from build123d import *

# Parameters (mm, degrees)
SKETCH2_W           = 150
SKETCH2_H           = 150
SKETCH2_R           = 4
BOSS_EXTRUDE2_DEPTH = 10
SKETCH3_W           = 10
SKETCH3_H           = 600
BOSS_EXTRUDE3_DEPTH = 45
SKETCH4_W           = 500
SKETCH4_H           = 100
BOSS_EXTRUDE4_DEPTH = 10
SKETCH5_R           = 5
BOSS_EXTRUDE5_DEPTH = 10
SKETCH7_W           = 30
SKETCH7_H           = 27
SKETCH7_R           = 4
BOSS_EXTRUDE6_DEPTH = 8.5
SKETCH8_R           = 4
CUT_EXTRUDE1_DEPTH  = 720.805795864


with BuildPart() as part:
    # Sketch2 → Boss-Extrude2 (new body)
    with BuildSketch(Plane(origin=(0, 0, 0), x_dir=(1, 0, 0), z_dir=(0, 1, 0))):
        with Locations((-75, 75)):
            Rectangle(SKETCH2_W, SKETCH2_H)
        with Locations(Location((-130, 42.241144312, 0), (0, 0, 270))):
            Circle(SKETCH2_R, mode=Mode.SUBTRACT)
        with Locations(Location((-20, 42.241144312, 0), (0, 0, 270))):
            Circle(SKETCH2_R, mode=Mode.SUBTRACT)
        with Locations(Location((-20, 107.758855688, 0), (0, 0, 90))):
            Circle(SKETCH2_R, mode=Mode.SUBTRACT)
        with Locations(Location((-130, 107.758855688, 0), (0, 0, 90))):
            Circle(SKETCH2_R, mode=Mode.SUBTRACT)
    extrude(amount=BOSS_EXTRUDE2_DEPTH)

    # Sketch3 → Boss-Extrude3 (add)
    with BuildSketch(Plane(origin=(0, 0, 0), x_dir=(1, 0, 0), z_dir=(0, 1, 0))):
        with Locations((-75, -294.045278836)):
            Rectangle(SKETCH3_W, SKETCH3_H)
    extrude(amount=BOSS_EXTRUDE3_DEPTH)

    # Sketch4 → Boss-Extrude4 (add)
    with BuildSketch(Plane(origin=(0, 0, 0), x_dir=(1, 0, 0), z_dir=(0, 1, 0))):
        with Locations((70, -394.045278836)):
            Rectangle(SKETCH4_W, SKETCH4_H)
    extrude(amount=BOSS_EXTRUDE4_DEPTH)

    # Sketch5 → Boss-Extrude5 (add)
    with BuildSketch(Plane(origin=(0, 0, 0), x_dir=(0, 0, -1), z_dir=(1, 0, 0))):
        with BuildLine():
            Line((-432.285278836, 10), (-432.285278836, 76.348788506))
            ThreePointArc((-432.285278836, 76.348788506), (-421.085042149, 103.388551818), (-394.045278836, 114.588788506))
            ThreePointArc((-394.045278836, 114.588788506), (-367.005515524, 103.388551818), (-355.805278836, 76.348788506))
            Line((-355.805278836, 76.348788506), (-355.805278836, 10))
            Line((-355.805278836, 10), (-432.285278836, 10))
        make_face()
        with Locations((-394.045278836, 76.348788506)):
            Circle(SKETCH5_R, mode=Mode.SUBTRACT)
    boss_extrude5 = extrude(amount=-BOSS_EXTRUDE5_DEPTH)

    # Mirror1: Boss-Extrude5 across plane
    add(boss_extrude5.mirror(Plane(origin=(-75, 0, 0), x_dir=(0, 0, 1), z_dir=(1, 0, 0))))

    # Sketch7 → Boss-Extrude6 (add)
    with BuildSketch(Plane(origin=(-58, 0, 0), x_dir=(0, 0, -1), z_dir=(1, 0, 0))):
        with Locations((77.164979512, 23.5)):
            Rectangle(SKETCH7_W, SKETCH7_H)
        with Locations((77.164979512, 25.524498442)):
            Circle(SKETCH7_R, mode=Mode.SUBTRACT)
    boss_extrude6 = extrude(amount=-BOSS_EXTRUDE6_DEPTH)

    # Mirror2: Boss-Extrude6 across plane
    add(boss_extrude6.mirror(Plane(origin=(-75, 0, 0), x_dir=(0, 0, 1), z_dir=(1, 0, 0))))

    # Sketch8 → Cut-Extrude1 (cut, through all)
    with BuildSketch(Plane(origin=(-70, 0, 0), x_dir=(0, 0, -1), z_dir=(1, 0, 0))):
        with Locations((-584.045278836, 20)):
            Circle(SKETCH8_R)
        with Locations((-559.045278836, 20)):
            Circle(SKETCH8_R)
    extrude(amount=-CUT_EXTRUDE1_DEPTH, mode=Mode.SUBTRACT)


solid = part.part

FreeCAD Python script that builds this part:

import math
import FreeCAD as App
import Part
import Sketcher
Q = App.Units.Quantity

doc = App.newDocument("Part")
body = doc.addObject("PartDesign::Body", "Body")

# Sketch on XZ plane
sketch1 = doc.addObject("Sketcher::SketchObject", "Sketch")
body.addObject(sketch1)
sketch1.AttachmentSupport = (doc.XZ_Plane, [""])
sketch1.MapMode = "FlatFace"
sketch1.addGeometry(Part.LineSegment(App.Vector(-150, -150, 0), App.Vector(-150, 0, 0)), False)
sketch1.addGeometry(Part.LineSegment(App.Vector(-150, 0, 0), App.Vector(0, 0, 0)), False)
sketch1.addGeometry(Part.LineSegment(App.Vector(0, 0, 0), App.Vector(0, -150, 0)), False)
sketch1.addGeometry(Part.LineSegment(App.Vector(0, -150, 0), App.Vector(-150, -150, 0)), False)
sketch1.addGeometry(Part.Circle(App.Vector(-130, -42.2, 0), App.Vector(0, 0, 1), 4), False)
sketch1.addGeometry(Part.Circle(App.Vector(-20, -42.2, 0), App.Vector(0, 0, 1), 4), False)
sketch1.addGeometry(Part.Circle(App.Vector(-130, -107.8, 0), App.Vector(0, 0, 1), 4), False)
sketch1.addGeometry(Part.Circle(App.Vector(-20, -107.8, 0), App.Vector(0, 0, 1), 4), False)
sketch1.addConstraint(Sketcher.Constraint("Coincident", 0, 2, 1, 1))
sketch1.addConstraint(Sketcher.Constraint("Coincident", 1, 2, 2, 1))
sketch1.addConstraint(Sketcher.Constraint("Coincident", 2, 2, 3, 1))
sketch1.addConstraint(Sketcher.Constraint("Coincident", 3, 2, 0, 1))
sketch1.addConstraint(Sketcher.Constraint("Vertical", 0))
sketch1.addConstraint(Sketcher.Constraint("Horizontal", 1))
sketch1.addConstraint(Sketcher.Constraint("Vertical", 2))
sketch1.addConstraint(Sketcher.Constraint("Horizontal", 3))
sketch1.addConstraint(Sketcher.Constraint("Coincident", 1, 2, -1, 1))
sketch1.addConstraint(Sketcher.Constraint("Equal", 4, 5))
sketch1.addConstraint(Sketcher.Constraint("Equal", 5, 6))
sketch1.addConstraint(Sketcher.Constraint("Equal", 6, 7))
sketch1.addConstraint(Sketcher.Constraint("Horizontal", 4, 3, 5, 3))
sketch1.addConstraint(Sketcher.Constraint("Horizontal", 6, 3, 7, 3))
sketch1.addConstraint(Sketcher.Constraint("Vertical", 4, 3, 6, 3))
sketch1.addConstraint(Sketcher.Constraint("Vertical", 5, 3, 7, 3))
sketch1.addConstraint(Sketcher.Constraint("Equal", 3, 0))
sketch1.addConstraint(Sketcher.Constraint("Diameter", 4, Q("8 mm")))
sketch1.addConstraint(Sketcher.Constraint("DistanceX", 1, 1, 1, 2, Q("150 mm")))
sketch1.addConstraint(Sketcher.Constraint("DistanceX", 4, 3, -1, 1, Q("130 mm")))
sketch1.addConstraint(Sketcher.Constraint("DistanceX", 5, 3, -1, 1, Q("20 mm")))
sketch1.addConstraint(Sketcher.Constraint("DistanceY", 6, 3, 4, 3, Q("65.517711 mm")))
sketch1.addConstraint(Sketcher.Constraint("DistanceY", 4, 3, -1, 1, Q("42.241144 mm")))
pad1 = doc.addObject("PartDesign::Pad", "Pad")
body.addObject(pad1)
pad1.Profile = sketch1
pad1.Length = 10
pad1.Reversed = True

# Sketch on XZ plane
sketch2 = doc.addObject("Sketcher::SketchObject", "Sketch001")
body.addObject(sketch2)
sketch2.AttachmentSupport = (doc.XZ_Plane, [""])
sketch2.MapMode = "FlatFace"
sketch2.addGeometry(Part.LineSegment(App.Vector(-80, -6, 0), App.Vector(-80, 594, 0)), False)
sketch2.addGeometry(Part.LineSegment(App.Vector(-80, 594, 0), App.Vector(-70, 594, 0)), False)
sketch2.addGeometry(Part.LineSegment(App.Vector(-70, 594, 0), App.Vector(-70, -6, 0)), False)
sketch2.addGeometry(Part.LineSegment(App.Vector(-70, -6, 0), App.Vector(-80, -6, 0)), False)
sketch2.addConstraint(Sketcher.Constraint("Coincident", 0, 2, 1, 1))
sketch2.addConstraint(Sketcher.Constraint("Coincident", 1, 2, 2, 1))
sketch2.addConstraint(Sketcher.Constraint("Coincident", 2, 2, 3, 1))
sketch2.addConstraint(Sketcher.Constraint("Coincident", 3, 2, 0, 1))
sketch2.addConstraint(Sketcher.Constraint("Vertical", 0))
sketch2.addConstraint(Sketcher.Constraint("Horizontal", 1))
sketch2.addConstraint(Sketcher.Constraint("Vertical", 2))
sketch2.addConstraint(Sketcher.Constraint("Horizontal", 3))
sketch2.addConstraint(Sketcher.Constraint("DistanceX", 1, 1, 1, 2, Q("10 mm")))
sketch2.addConstraint(Sketcher.Constraint("DistanceY", 0, 1, 0, 2, Q("600 mm")))
sketch2.addConstraint(Sketcher.Constraint("DistanceX", 0, 2, -1, 1, Q("80 mm")))
sketch2.addConstraint(Sketcher.Constraint("DistanceY", -1, 1, 0, 2, Q("594.045279 mm")))
pad2 = doc.addObject("PartDesign::Pad", "Pad001")
body.addObject(pad2)
pad2.Profile = sketch2
pad2.Length = 45
pad2.Reversed = True

# Sketch on XZ plane
sketch3 = doc.addObject("Sketcher::SketchObject", "Sketch002")
body.addObject(sketch3)
sketch3.AttachmentSupport = (doc.XZ_Plane, [""])
sketch3.MapMode = "FlatFace"
sketch3.addGeometry(Part.LineSegment(App.Vector(-180, 344, 0), App.Vector(-180, 444, 0)), False)
sketch3.addGeometry(Part.LineSegment(App.Vector(-180, 444, 0), App.Vector(320, 444, 0)), False)
sketch3.addGeometry(Part.LineSegment(App.Vector(320, 444, 0), App.Vector(320, 344, 0)), False)
sketch3.addGeometry(Part.LineSegment(App.Vector(320, 344, 0), App.Vector(-180, 344, 0)), False)
sketch3.addConstraint(Sketcher.Constraint("Coincident", 0, 2, 1, 1))
sketch3.addConstraint(Sketcher.Constraint("Coincident", 1, 2, 2, 1))
sketch3.addConstraint(Sketcher.Constraint("Coincident", 2, 2, 3, 1))
sketch3.addConstraint(Sketcher.Constraint("Coincident", 3, 2, 0, 1))
sketch3.addConstraint(Sketcher.Constraint("Vertical", 0))
sketch3.addConstraint(Sketcher.Constraint("Horizontal", 1))
sketch3.addConstraint(Sketcher.Constraint("Vertical", 2))
sketch3.addConstraint(Sketcher.Constraint("Horizontal", 3))
sketch3.addConstraint(Sketcher.Constraint("DistanceX", 1, 1, 1, 2, Q("500 mm")))
sketch3.addConstraint(Sketcher.Constraint("DistanceY", 0, 1, 0, 2, Q("100 mm")))
sketch3.addConstraint(Sketcher.Constraint("DistanceX", 0, 2, -1, 1, Q("180 mm")))
sketch3.addConstraint(Sketcher.Constraint("DistanceY", -1, 1, 0, 2, Q("444.045279 mm")))
pad3 = doc.addObject("PartDesign::Pad", "Pad002")
body.addObject(pad3)
pad3.Profile = sketch3
pad3.Length = 10
pad3.Reversed = True

# Sketch on YZ plane
sketch4 = doc.addObject("Sketcher::SketchObject", "Sketch003")
body.addObject(sketch4)
sketch4.AttachmentSupport = (doc.YZ_Plane, [""])
sketch4.MapMode = "FlatFace"
sketch4.addGeometry(Part.LineSegment(App.Vector(76, 432, 0), App.Vector(10, 432, 0)), False)
sketch4.addGeometry(Part.LineSegment(App.Vector(10, 432, 0), App.Vector(10, 356, 0)), False)
sketch4.addGeometry(Part.LineSegment(App.Vector(10, 356, 0), App.Vector(76, 356, 0)), False)
sketch4.addGeometry(Part.ArcOfCircle(Part.Circle(App.Vector(76, 394, 0), App.Vector(0, 0, 1), 38), math.radians(-90), math.radians(0)), False)
sketch4.addGeometry(Part.ArcOfCircle(Part.Circle(App.Vector(76, 394, 0), App.Vector(0, 0, 1), 38), math.radians(0), math.radians(90)), False)
sketch4.addGeometry(Part.Circle(App.Vector(76, 394, 0), App.Vector(0, 0, 1), 5), False)
sketch4.addConstraint(Sketcher.Constraint("Coincident", 0, 2, 1, 1))
sketch4.addConstraint(Sketcher.Constraint("Coincident", 1, 2, 2, 1))
sketch4.addConstraint(Sketcher.Constraint("Tangent", 2, 2, 3, 1))
sketch4.addConstraint(Sketcher.Constraint("Tangent", 3, 2, 4, 1))
sketch4.addConstraint(Sketcher.Constraint("Tangent", 4, 2, 0, 1))
sketch4.addConstraint(Sketcher.Constraint("Horizontal", 0))
sketch4.addConstraint(Sketcher.Constraint("Vertical", 1))
sketch4.addConstraint(Sketcher.Constraint("Horizontal", 2))
sketch4.addConstraint(Sketcher.Constraint("Coincident", 5, 3, 3, 3))
sketch4.addConstraint(Sketcher.Constraint("Equal", 3, 4))
sketch4.addConstraint(Sketcher.Constraint("Horizontal", 5, 3, 3, 2))
sketch4.addConstraint(Sketcher.Constraint("Diameter", 5, Q("10 mm")))
sketch4.addConstraint(Sketcher.Constraint("Radius", 3, Q("38.24 mm")))
sketch4.addConstraint(Sketcher.Constraint("DistanceX", -1, 1, 0, 2, Q("10 mm")))
sketch4.addConstraint(Sketcher.Constraint("DistanceX", 0, 2, 0, 1, Q("66.348789 mm")))
sketch4.addConstraint(Sketcher.Constraint("DistanceY", -1, 1, 3, 3, Q("394.045279 mm")))
pad4 = doc.addObject("PartDesign::Pad", "Pad003")
body.addObject(pad4)
pad4.Profile = sketch4
pad4.Length = 10
pad4.Reversed = True
doc.recompute()

datumplane = doc.addObject("PartDesign::Plane", "DatumPlane")
body.addObject(datumplane)
datumplane.AttachmentSupport = (doc.YZ_Plane, [""])
datumplane.MapMode = "FlatFace"
datumplane.AttachmentOffset = App.Placement(App.Vector(0, 0, -75), App.Rotation())
mirrored = doc.addObject("PartDesign::Mirrored", "Mirrored")
body.addObject(mirrored)
mirrored.Originals = [pad4]
mirrored.MirrorPlane = (datumplane, [""])
body.Tip = mirrored

# Sketch on YZ plane
sketch5 = doc.addObject("Sketcher::SketchObject", "Sketch004")
body.addObject(sketch5)
sketch5.AttachmentSupport = (doc.YZ_Plane, [""])
sketch5.MapMode = "FlatFace"
sketch5.AttachmentOffset = App.Placement(App.Vector(0, 0, -58), App.Rotation())
sketch5.addGeometry(Part.LineSegment(App.Vector(37, -62.2, 0), App.Vector(10, -62.2, 0)), False)
sketch5.addGeometry(Part.LineSegment(App.Vector(10, -62.2, 0), App.Vector(10, -92.2, 0)), False)
sketch5.addGeometry(Part.LineSegment(App.Vector(10, -92.2, 0), App.Vector(37, -92.2, 0)), False)
sketch5.addGeometry(Part.LineSegment(App.Vector(37, -92.2, 0), App.Vector(37, -62.2, 0)), False)
sketch5.addGeometry(Part.Circle(App.Vector(25.5, -77.2, 0), App.Vector(0, 0, 1), 4), False)
sketch5.addConstraint(Sketcher.Constraint("Coincident", 0, 2, 1, 1))
sketch5.addConstraint(Sketcher.Constraint("Coincident", 1, 2, 2, 1))
sketch5.addConstraint(Sketcher.Constraint("Coincident", 2, 2, 3, 1))
sketch5.addConstraint(Sketcher.Constraint("Coincident", 3, 2, 0, 1))
sketch5.addConstraint(Sketcher.Constraint("Horizontal", 0))
sketch5.addConstraint(Sketcher.Constraint("Vertical", 1))
sketch5.addConstraint(Sketcher.Constraint("Horizontal", 2))
sketch5.addConstraint(Sketcher.Constraint("Vertical", 3))
sketch5.addConstraint(Sketcher.Constraint("Diameter", 4, Q("8 mm")))
sketch5.addConstraint(Sketcher.Constraint("DistanceX", 0, 2, 0, 1, Q("27 mm")))
sketch5.addConstraint(Sketcher.Constraint("DistanceY", 1, 2, 1, 1, Q("30 mm")))
sketch5.addConstraint(Sketcher.Constraint("DistanceX", -1, 1, 0, 2, Q("10 mm")))
sketch5.addConstraint(Sketcher.Constraint("DistanceY", 4, 3, 0, 2, Q("15 mm")))
sketch5.addConstraint(Sketcher.Constraint("DistanceX", -1, 1, 4, 3, Q("25.524498 mm")))
sketch5.addConstraint(Sketcher.Constraint("DistanceY", 4, 3, -1, 1, Q("77.16498 mm")))
pad5 = doc.addObject("PartDesign::Pad", "Pad004")
body.addObject(pad5)
pad5.Profile = sketch5
pad5.Length = 8.5
pad5.Reversed = True
doc.recompute()

datumplane2 = doc.addObject("PartDesign::Plane", "DatumPlane001")
body.addObject(datumplane2)
datumplane2.AttachmentSupport = (doc.YZ_Plane, [""])
datumplane2.MapMode = "FlatFace"
datumplane2.AttachmentOffset = App.Placement(App.Vector(0, 0, -75), App.Rotation())
mirrored2 = doc.addObject("PartDesign::Mirrored", "Mirrored001")
body.addObject(mirrored2)
mirrored2.Originals = [pad5]
mirrored2.MirrorPlane = (datumplane2, [""])
body.Tip = mirrored2

# Sketch on YZ plane
sketch6 = doc.addObject("Sketcher::SketchObject", "Sketch005")
body.addObject(sketch6)
sketch6.AttachmentSupport = (doc.YZ_Plane, [""])
sketch6.MapMode = "FlatFace"
sketch6.AttachmentOffset = App.Placement(App.Vector(0, 0, -70), App.Rotation())
sketch6.addGeometry(Part.Circle(App.Vector(20, 584, 0), App.Vector(0, 0, 1), 4), False)
sketch6.addGeometry(Part.Circle(App.Vector(20, 559, 0), App.Vector(0, 0, 1), 4), False)
sketch6.addConstraint(Sketcher.Constraint("Equal", 0, 1))
sketch6.addConstraint(Sketcher.Constraint("Vertical", 0, 3, 1, 3))
sketch6.addConstraint(Sketcher.Constraint("Diameter", 0, Q("8 mm")))
sketch6.addConstraint(Sketcher.Constraint("DistanceX", -1, 1, 0, 3, Q("20 mm")))
sketch6.addConstraint(Sketcher.Constraint("DistanceY", 1, 3, 0, 3, Q("25 mm")))
sketch6.addConstraint(Sketcher.Constraint("DistanceY", -1, 1, 0, 3, Q("584.045279 mm")))
pocket1 = doc.addObject("PartDesign::Pocket", "Pocket")
body.addObject(pocket1)
pocket1.Profile = sketch6
pocket1.Type = "ThroughAll"

doc.recompute()
